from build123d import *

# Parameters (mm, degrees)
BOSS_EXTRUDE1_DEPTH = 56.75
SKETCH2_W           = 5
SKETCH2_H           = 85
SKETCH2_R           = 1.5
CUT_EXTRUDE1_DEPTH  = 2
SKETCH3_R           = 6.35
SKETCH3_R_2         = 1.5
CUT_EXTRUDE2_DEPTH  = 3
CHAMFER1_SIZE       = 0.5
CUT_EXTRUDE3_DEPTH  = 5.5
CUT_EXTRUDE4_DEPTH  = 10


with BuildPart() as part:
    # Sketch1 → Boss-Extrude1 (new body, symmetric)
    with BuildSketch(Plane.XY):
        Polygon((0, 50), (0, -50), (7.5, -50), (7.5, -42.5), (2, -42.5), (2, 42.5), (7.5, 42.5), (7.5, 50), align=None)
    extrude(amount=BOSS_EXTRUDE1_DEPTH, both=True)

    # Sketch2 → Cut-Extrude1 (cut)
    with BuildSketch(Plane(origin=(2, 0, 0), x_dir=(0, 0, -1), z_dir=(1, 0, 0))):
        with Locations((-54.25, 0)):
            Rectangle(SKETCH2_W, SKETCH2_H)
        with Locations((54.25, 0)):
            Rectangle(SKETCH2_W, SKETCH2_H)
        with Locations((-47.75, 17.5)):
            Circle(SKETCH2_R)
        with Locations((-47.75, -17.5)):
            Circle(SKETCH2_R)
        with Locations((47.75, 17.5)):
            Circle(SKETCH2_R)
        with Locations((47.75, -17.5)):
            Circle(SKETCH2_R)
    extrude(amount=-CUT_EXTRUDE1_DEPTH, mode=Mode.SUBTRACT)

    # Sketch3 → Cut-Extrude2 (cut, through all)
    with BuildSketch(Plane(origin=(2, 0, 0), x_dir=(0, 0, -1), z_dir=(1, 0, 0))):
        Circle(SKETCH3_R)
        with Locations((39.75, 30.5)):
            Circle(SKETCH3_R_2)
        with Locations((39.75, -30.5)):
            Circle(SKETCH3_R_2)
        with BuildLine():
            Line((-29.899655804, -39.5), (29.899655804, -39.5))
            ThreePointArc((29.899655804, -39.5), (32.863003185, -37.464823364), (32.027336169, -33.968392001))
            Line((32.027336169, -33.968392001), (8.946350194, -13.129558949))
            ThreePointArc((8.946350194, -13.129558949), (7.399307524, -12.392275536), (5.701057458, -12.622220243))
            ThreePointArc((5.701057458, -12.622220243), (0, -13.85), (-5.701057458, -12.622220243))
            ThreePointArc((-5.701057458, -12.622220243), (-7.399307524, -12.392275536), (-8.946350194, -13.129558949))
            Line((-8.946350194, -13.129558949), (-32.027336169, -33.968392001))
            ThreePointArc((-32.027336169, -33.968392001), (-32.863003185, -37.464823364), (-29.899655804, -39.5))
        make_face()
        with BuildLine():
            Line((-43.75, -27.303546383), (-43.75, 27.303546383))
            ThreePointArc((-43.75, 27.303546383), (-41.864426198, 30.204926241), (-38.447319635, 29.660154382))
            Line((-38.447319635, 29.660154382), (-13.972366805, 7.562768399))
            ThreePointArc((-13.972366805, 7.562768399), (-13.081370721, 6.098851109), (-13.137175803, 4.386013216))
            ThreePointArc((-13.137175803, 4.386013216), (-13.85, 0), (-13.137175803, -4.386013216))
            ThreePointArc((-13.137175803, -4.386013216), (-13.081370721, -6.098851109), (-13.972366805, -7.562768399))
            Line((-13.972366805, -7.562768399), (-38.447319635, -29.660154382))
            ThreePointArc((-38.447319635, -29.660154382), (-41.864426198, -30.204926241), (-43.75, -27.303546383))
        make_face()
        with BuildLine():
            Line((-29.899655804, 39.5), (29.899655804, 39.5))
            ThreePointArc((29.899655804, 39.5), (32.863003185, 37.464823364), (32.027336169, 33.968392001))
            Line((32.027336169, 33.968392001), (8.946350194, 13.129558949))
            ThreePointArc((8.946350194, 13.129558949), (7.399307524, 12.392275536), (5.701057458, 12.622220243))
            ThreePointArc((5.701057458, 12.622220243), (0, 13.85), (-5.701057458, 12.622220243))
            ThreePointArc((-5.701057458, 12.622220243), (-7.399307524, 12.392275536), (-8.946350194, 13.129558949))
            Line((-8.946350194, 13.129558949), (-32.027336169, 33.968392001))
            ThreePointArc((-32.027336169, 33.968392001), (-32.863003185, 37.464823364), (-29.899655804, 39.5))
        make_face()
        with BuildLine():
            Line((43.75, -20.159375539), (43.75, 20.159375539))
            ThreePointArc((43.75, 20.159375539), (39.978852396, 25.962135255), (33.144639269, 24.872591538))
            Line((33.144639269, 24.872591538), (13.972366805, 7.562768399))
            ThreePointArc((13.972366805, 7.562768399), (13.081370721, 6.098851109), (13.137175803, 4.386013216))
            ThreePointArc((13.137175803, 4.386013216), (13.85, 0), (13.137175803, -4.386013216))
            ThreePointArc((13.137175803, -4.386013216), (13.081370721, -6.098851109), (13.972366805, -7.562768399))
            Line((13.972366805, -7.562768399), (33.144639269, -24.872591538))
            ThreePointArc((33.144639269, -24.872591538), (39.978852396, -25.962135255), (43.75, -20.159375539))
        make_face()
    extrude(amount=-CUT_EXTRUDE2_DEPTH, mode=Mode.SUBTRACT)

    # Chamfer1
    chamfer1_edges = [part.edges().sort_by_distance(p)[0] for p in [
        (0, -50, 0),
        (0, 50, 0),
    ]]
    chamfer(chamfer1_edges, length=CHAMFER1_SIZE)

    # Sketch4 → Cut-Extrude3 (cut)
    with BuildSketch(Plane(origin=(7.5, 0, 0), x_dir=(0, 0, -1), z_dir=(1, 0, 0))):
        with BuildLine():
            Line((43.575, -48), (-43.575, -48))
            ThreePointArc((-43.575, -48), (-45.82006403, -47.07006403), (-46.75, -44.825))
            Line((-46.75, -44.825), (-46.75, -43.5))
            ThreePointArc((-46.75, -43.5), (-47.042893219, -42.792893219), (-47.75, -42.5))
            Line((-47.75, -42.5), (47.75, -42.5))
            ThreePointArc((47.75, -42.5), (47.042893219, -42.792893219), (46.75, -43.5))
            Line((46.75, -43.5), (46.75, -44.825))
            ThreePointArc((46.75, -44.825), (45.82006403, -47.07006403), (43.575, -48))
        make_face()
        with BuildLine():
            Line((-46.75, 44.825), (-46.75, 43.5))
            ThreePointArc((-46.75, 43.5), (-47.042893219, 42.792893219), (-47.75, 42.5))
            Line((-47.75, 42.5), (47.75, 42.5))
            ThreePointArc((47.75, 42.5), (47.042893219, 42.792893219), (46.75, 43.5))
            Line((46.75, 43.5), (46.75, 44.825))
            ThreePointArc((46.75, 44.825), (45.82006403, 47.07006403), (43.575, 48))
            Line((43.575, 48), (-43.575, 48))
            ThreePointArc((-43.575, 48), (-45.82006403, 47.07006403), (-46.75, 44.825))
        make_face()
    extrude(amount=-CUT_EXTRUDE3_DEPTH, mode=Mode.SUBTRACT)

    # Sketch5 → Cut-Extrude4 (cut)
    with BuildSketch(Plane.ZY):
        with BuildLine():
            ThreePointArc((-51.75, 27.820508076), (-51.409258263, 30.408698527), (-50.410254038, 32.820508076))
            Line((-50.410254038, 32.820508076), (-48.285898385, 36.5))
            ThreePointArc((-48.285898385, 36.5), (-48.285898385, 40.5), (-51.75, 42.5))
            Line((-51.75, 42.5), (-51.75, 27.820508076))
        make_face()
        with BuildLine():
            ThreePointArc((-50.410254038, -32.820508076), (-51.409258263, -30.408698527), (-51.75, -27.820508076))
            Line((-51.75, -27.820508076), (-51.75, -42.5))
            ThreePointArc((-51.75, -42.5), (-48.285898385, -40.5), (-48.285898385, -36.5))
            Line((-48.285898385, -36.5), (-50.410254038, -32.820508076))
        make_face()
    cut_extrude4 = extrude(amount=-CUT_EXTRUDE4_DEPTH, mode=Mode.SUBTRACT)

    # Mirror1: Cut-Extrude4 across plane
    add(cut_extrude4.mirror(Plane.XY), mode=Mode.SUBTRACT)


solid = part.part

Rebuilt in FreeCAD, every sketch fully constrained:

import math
import FreeCAD as App
import Part
import Sketcher
from FreeCAD import Vector
Q = App.Units.Quantity


def edges_at(feature, points):
    """Names of the edges that pass closest to the given points."""
    edges = feature.Shape.Edges
    near = lambda p: min(range(len(edges)), key=lambda i: edges[i].distToShape(Part.Vertex(*p))[0])
    return sorted({f"Edge{near(p) + 1}" for p in points})

doc = App.newDocument("Part")
body = doc.addObject("PartDesign::Body", "Body")

sketch1 = body.newObject("Sketcher::SketchObject", "Sketch")
sketch1.AttachmentSupport = (doc.getObject("XY_Plane"), [""])
sketch1.MapMode = "FlatFace"
sketch1.addGeometry([
    Part.LineSegment(Vector(0, 50, 0), Vector(0, -50, 0)),
    Part.LineSegment(Vector(0, -50, 0), Vector(7.5, -50, 0)),
    Part.LineSegment(Vector(7.5, -50, 0), Vector(7.5, -42.5, 0)),
    Part.LineSegment(Vector(7.5, -42.5, 0), Vector(2, -42.5, 0)),
    Part.LineSegment(Vector(2, -42.5, 0), Vector(2, 42.5, 0)),
    Part.LineSegment(Vector(2, 42.5, 0), Vector(7.5, 42.5, 0)),
    Part.LineSegment(Vector(7.5, 42.5, 0), Vector(7.5, 50, 0)),
    Part.LineSegment(Vector(7.5, 50, 0), Vector(0, 50, 0)),
], False)
sketch1.addConstraint([
    Sketcher.Constraint("Coincident", 0, 2, 1, 1),
    Sketcher.Constraint("Coincident", 1, 2, 2, 1),
    Sketcher.Constraint("Coincident", 2, 2, 3, 1),
    Sketcher.Constraint("Coincident", 3, 2, 4, 1),
    Sketcher.Constraint("Coincident", 4, 2, 5, 1),
    Sketcher.Constraint("Coincident", 5, 2, 6, 1),
    Sketcher.Constraint("Coincident", 6, 2, 7, 1),
    Sketcher.Constraint("Coincident", 7, 2, 0, 1),
    Sketcher.Constraint("Vertical", 0),
    Sketcher.Constraint("Horizontal", 1),
    Sketcher.Constraint("Vertical", 2),
    Sketcher.Constraint("Horizontal", 3),
    Sketcher.Constraint("Vertical", 4),
    Sketcher.Constraint("Horizontal", 5),
    Sketcher.Constraint("Vertical", 6),
    Sketcher.Constraint("Horizontal", 7),
    Sketcher.Constraint("Symmetric", 0, 2, 7, 2, -1, 1),
    Sketcher.Constraint("Symmetric", 2, 2, 5, 2, -1),
    Sketcher.Constraint("Equal", 7, 2),
    Sketcher.Constraint("DistanceY", 0, 2, 0, 1, 100.0),
    Sketcher.Constraint("DistanceY", 4, 1, 4, 2, 85.0),
    Sketcher.Constraint("DistanceX", 3, 2, 3, 1, 5.5),
])
pad1 = body.newObject("PartDesign::Pad", "Pad")
pad1.Profile = sketch1
pad1.Length = 113.5
pad1.Midplane = True

sketch2 = body.newObject("Sketcher::SketchObject", "Sketch001")
sketch2.AttachmentSupport = (doc.getObject("YZ_Plane"), [""])
sketch2.MapMode = "FlatFace"
sketch2.AttachmentOffset = App.Placement(Vector(0, 0, 2), App.Rotation())
sketch2.addGeometry([
    Part.LineSegment(Vector(42.5, 56.75, 0), Vector(-42.5, 56.75, 0)),
    Part.LineSegment(Vector(-42.5, 56.75, 0), Vector(-42.5, 51.75, 0)),
    Part.LineSegment(Vector(-42.5, 51.75, 0), Vector(42.5, 51.75, 0)),
    Part.LineSegment(Vector(42.5, 51.75, 0), Vector(42.5, 56.75, 0)),
    Part.LineSegment(Vector(42.5, -51.75, 0), Vector(-42.5, -51.75, 0)),
    Part.LineSegment(Vector(-42.5, -51.75, 0), Vector(-42.5, -56.75, 0)),
    Part.LineSegment(Vector(-42.5, -56.75, 0), Vector(42.5, -56.75, 0)),
    Part.LineSegment(Vector(42.5, -56.75, 0), Vector(42.5, -51.75, 0)),
    Part.Circle(Vector(17.5, 47.75, 0), Vector(0, 0, 1), 1.5),
    Part.Circle(Vector(-17.5, 47.75, 0), Vector(0, 0, 1), 1.5),
    Part.Circle(Vector(17.5, -47.75, 0), Vector(0, 0, 1), 1.5),
    Part.Circle(Vector(-17.5, -47.75, 0), Vector(0, 0, 1), 1.5),
], False)
sketch2.addConstraint([
    Sketcher.Constraint("Coincident", 0, 2, 1, 1),
    Sketcher.Constraint("Coincident", 1, 2, 2, 1),
    Sketcher.Constraint("Coincident", 2, 2, 3, 1),
    Sketcher.Constraint("Coincident", 3, 2, 0, 1),
    Sketcher.Constraint("Coincident", 4, 2, 5, 1),
    Sketcher.Constraint("Coincident", 5, 2, 6, 1),
    Sketcher.Constraint("Coincident", 6, 2, 7, 1),
    Sketcher.Constraint("Coincident", 7, 2, 4, 1),
    Sketcher.Constraint("Horizontal", 0),
    Sketcher.Constraint("Vertical", 1),
    Sketcher.Constraint("Horizontal", 2),
    Sketcher.Constraint("Vertical", 3),
    Sketcher.Constraint("Horizontal", 4),
    Sketcher.Constraint("Vertical", 5),
    Sketcher.Constraint("Horizontal", 6),
    Sketcher.Constraint("Vertical", 7),
    Sketcher.Constraint("Equal", 8, 9),
    Sketcher.Constraint("Equal", 9, 10),
    Sketcher.Constraint("Equal", 10, 11),
    Sketcher.Constraint("Symmetric", 9, 3, 10, 3, -1, 1),
    Sketcher.Constraint("Symmetric", 8, 3, 11, 3, -1, 1),
    Sketcher.Constraint("Symmetric", 2, 2, 4, 2, -1, 1),
    Sketcher.Constraint("Symmetric", 0, 2, 6, 2, -1, 1),
    Sketcher.Constraint("Symmetric", 8, 3, 9, 3, -2),
    Sketcher.Constraint("Vertical", 1, 2, 4, 2),
    Sketcher.Constraint("Diameter", 8, 3.0),
    Sketcher.Constraint("DistanceX", 0, 2, 0, 1, 85.0),
    Sketcher.Constraint("DistanceY", 1, 2, 1, 1, 5.0),
    Sketcher.Constraint("DistanceX", 9, 3, 8, 3, 35.0),
    Sketcher.Constraint("DistanceY", 9, 3, 0, 2, 9.0),
    Sketcher.Constraint("DistanceY", 10, 3, 8, 3, 95.5),
])
pocket1 = body.newObject("PartDesign::Pocket", "Pocket")
pocket1.Profile = sketch2
pocket1.Length = 2

sketch3 = body.newObject("Sketcher::SketchObject", "Sketch002")
sketch3.AttachmentSupport = (doc.getObject("YZ_Plane"), [""])
sketch3.MapMode = "FlatFace"
sketch3.AttachmentOffset = App.Placement(Vector(0, 0, 2), App.Rotation())
sketch3.addGeometry([
    Part.Circle(Vector(0, 0, 0), Vector(0, 0, 1), 6.35),
    Part.Circle(Vector(30.5, -39.75, 0), Vector(0, 0, 1), 1.5),
    Part.Circle(Vector(-30.5, -39.75, 0), Vector(0, 0, 1), 1.5),
    Part.LineSegment(Vector(-39.5, 29.899656, 0), Vector(-39.5, -29.899656, 0)),
    Part.ArcOfCircle(Part.Circle(Vector(-36.325, -29.899656, 0), Vector(0, 0, 1), 3.175), math.radians(180), math.radians(317.922473)),
    Part.LineSegment(Vector(-33.968392, -32.027336, 0), Vector(-13.129559, -8.94635, 0)),
    Part.ArcOfCircle(Part.Circle(Vector(-15.356275, -6.935944, 0), Vector(0, 0, 1), 3), math.radians(-42.077527), math.radians(24.307188)),
    Part.ArcOfCircle(Part.Circle(Vector(0, 0, 0), Vector(0, 0, 1), 13.85), math.radians(155.692812), math.radians(204.307188)),
    Part.ArcOfCircle(Part.Circle(Vector(-15.356275, 6.935944, 0), Vector(0, 0, 1), 3), math.radians(-24.307188), math.radians(42.077527)),
    Part.LineSegment(Vector(-13.129559, 8.94635, 0), Vector(-33.968392, 32.027336, 0)),
    Part.ArcOfCircle(Part.Circle(Vector(-36.325, 29.899656, 0), Vector(0, 0, 1), 3.175), math.radians(42.077527), math.radians(180)),
    Part.LineSegment(Vector(27.303546, 43.75, 0), Vector(-27.303546, 43.75, 0)),
    Part.ArcOfCircle(Part.Circle(Vector(-27.303546, 40.575, 0), Vector(0, 0, 1), 3.175), math.radians(90), math.radians(222.077527)),
    Part.LineSegment(Vector(-29.660154, 38.44732, 0), Vector(-7.562768, 13.972367, 0)),
    Part.ArcOfCircle(Part.Circle(Vector(-5.336052, 15.982773, 0), Vector(0, 0, 1), 3), math.radians(-137.922473), math.radians(-71.537757)),
    Part.ArcOfCircle(Part.Circle(Vector(0, 0, 0), Vector(0, 0, 1), 13.85), math.radians(71.537757), math.radians(108.462243)),
    Part.ArcOfCircle(Part.Circle(Vector(5.336052, 15.982773, 0), Vector(0, 0, 1), 3), math.radians(-108.462243), math.radians(-42.077527)),
    Part.LineSegment(Vector(7.562768, 13.972367, 0), Vector(29.660154, 38.44732, 0)),
    Part.ArcOfCircle(Part.Circle(Vector(27.303546, 40.575, 0), Vector(0, 0, 1), 3.175), math.radians(-42.077527), math.radians(90)),
    Part.LineSegment(Vector(39.5, -29.899656, 0), Vector(39.5, 29.899656, 0)),
    Part.ArcOfCircle(Part.Circle(Vector(36.325, 29.899656, 0), Vector(0, 0, 1), 3.175), math.radians(0), math.radians(137.922473)),
    Part.LineSegment(Vector(33.968392, 32.027336, 0), Vector(13.129559, 8.94635, 0)),
    Part.ArcOfCircle(Part.Circle(Vector(15.356275, 6.935944, 0), Vector(0, 0, 1), 3), math.radians(137.922473), math.radians(204.307188)),
    Part.ArcOfCircle(Part.Circle(Vector(0, 0, 0), Vector(0, 0, 1), 13.85), math.radians(-24.307188), math.radians(24.307188)),
    Part.ArcOfCircle(Part.Circle(Vector(15.356275, -6.935944, 0), Vector(0, 0, 1), 3), math.radians(155.692812), math.radians(222.077527)),
    Part.LineSegment(Vector(13.129559, -8.94635, 0), Vector(33.968392, -32.027336, 0)),
    Part.ArcOfCircle(Part.Circle(Vector(36.325, -29.899656, 0), Vector(0, 0, 1), 3.175), math.radians(-137.922473), math.radians(0)),
    Part.LineSegment(Vector(-20.159376, -43.75, 0), Vector(20.159376, -43.75, 0)),
    Part.ArcOfCircle(Part.Circle(Vector(20.159376, -37.4, 0), Vector(0, 0, 1), 6.35), math.radians(-90), math.radians(42.077527)),
    Part.LineSegment(Vector(24.872592, -33.144639, 0), Vector(7.562768, -13.972367, 0)),
    Part.ArcOfCircle(Part.Circle(Vector(5.336052, -15.982773, 0), Vector(0, 0, 1), 3), math.radians(42.077527), math.radians(108.462243)),
    Part.ArcOfCircle(Part.Circle(Vector(0, 0, 0), Vector(0, 0, 1), 13.85), math.radians(-108.462243), math.radians(-71.537757)),
    Part.ArcOfCircle(Part.Circle(Vector(-5.336052, -15.982773, 0), Vector(0, 0, 1), 3), math.radians(71.537757), math.radians(137.922473)),
    Part.LineSegment(Vector(-7.562768, -13.972367, 0), Vector(-24.872592, -33.144639, 0)),
    Part.ArcOfCircle(Part.Circle(Vector(-20.159376, -37.4, 0), Vector(0, 0, 1), 6.35), math.radians(137.922473), math.radians(270)),
], False)
sketch3.addConstraint([
    Sketcher.Constraint("Tangent", 3, 2, 4, 1),
    Sketcher.Constraint("Tangent", 4, 2, 5, 1),
    Sketcher.Constraint("Tangent", 5, 2, 6, 1),
    Sketcher.Constraint("Tangent", 6, 2, 7, 2),
    Sketcher.Constraint("Tangent", 7, 1, 8, 1),
    Sketcher.Constraint("Tangent", 8, 2, 9, 1),
    Sketcher.Constraint("Tangent", 9, 2, 10, 1),
    Sketcher.Constraint("Tangent", 10, 2, 3, 1),
    Sketcher.Constraint("Tangent", 11, 2, 12, 1),
    Sketcher.Constraint("Tangent", 12, 2, 13, 1),
    Sketcher.Constraint("Tangent", 13, 2, 14, 1),
    Sketcher.Constraint("Tangent", 14, 2, 15, 2),
    Sketcher.Constraint("Tangent", 15, 1, 16, 1),
    Sketcher.Constraint("Tangent", 16, 2, 17, 1),
    Sketcher.Constraint("Tangent", 17, 2, 18, 1),
    Sketcher.Constraint("Tangent", 18, 2, 11, 1),
    Sketcher.Constraint("Tangent", 19, 2, 20, 1),
    Sketcher.Constraint("Tangent", 20, 2, 21, 1),
    Sketcher.Constraint("Tangent", 21, 2, 22, 1),
    Sketcher.Constraint("Tangent", 22, 2, 23, 2),
    Sketcher.Constraint("Tangent", 23, 1, 24, 1),
    Sketcher.Constraint("Tangent", 24, 2, 25, 1),
    Sketcher.Constraint("Tangent", 25, 2, 26, 1),
    Sketcher.Constraint("Tangent", 26, 2, 19, 1),
    Sketcher.Constraint("Tangent", 27, 2, 28, 1),
    Sketcher.Constraint("Tangent", 28, 2, 29, 1),
    Sketcher.Constraint("Tangent", 29, 2, 30, 1),
    Sketcher.Constraint("Tangent", 30, 2, 31, 2),
    Sketcher.Constraint("Tangent", 31, 1, 32, 1),
    Sketcher.Constraint("Tangent", 32, 2, 33, 1),
    Sketcher.Constraint("Tangent", 33, 2, 34, 1),
    Sketcher.Constraint("Tangent", 34, 2, 27, 1),
    Sketcher.Constraint("Vertical", 3),
    Sketcher.Constraint("Horizontal", 11),
    Sketcher.Constraint("Vertical", 19),
    Sketcher.Constraint("Horizontal", 27),
    Sketcher.Constraint("Coincident", 0, 3, -1, 1),
    Sketcher.Constraint("Coincident", 7, 3, -1, 1),
    Sketcher.Constraint("Coincident", 15, 3, -1, 1),
    Sketcher.Constraint("Coincident", 23, 3, -1, 1),
    Sketcher.Constraint("Coincident", 31, 3, -1, 1),
    Sketcher.Constraint("Equal", 1, 2),
    Sketcher.Constraint("Equal", 6, 8),
    Sketcher.Constraint("Equal", 4, 10),
    Sketcher.Constraint("Equal", 10, 12),
    Sketcher.Constraint("Equal", 8, 14),
    Sketcher.Constraint("Equal", 7, 15),
    Sketcher.Constraint("Equal", 14, 16),
    Sketcher.Constraint("Equal", 12, 18),
    Sketcher.Constraint("Equal", 18, 20),
    Sketcher.Constraint("Equal", 16, 22),
    Sketcher.Constraint("Equal", 15, 23),
    Sketcher.Constraint("Equal", 22, 24),
    Sketcher.Constraint("Equal", 20, 26),
    Sketcher.Constraint("Equal", 0, 28),
    Sketcher.Constraint("Equal", 24, 30),
    Sketcher.Constraint("Equal", 23, 31),
    Sketcher.Constraint("Equal", 30, 32),
    Sketcher.Constraint("Equal", 28, 34),
    Sketcher.Constraint("Symmetric", 4, 3, 20, 3, -1, 1),
    Sketcher.Constraint("Symmetric", 8, 2, 24, 2, -1, 1),
    Sketcher.Constraint("Symmetric", 13, 2, 29, 2, -1, 1),
    Sketcher.Constraint("Symmetric", 16, 2, 32, 2, -1, 1),
    Sketcher.Constraint("Symmetric", 1, 3, 2, 3, -2),
    Sketcher.Constraint("Symmetric", 13, 2, 16, 2, -2),
    Sketcher.Constraint("Symmetric", 9, 2, 20, 2, -2),
    Sketcher.Constraint("Parallel", 9, 13),
    Sketcher.Constraint("Parallel", 5, 17),
    Sketcher.Constraint("Diameter", 1, 3.0),
    Sketcher.Constraint("Radius", 6, 3.0),
    Sketcher.Constraint("Diameter", 0, 12.7),
    Sketcher.Constraint("Radius", 7, 13.85),
    Sketcher.Constraint("Radius", 4, 3.175),
    Sketcher.Constraint("DistanceX", 2, 3, 1, 3, 61.0),
    Sketcher.Constraint("DistanceX", 3, 2, 2, 3, 9.0),
    Sketcher.Constraint("DistanceY", 27, 2, 1, 3, 4.0),
    Sketcher.Constraint("DistanceY", 28, 3, -1, 1, 37.4),
    Sketcher.Constraint("DistanceY", -1, 1, 11, 2, 43.75),
    Sketcher.Constraint("DistanceY", 6, 2, 8, 3, 12.637001),
    Sketcher.Constraint("DistanceX", 27, 1, 27, 2, 40.318751),
    Sketcher.Constraint("DistanceY", 3, 2, 3, 1, 59.799312),
])
pocket2 = body.newObject("PartDesign::Pocket", "Pocket001")
pocket2.Profile = sketch3
pocket2.Type = "ThroughAll"
doc.recompute()

chamfer = body.newObject("PartDesign::Chamfer", "Chamfer")
chamfer.Base = (pocket2, edges_at(pocket2, [(0, -50, 0), (0, 50, 0)]))
chamfer.Size = 0.5

sketch4 = body.newObject("Sketcher::SketchObject", "Sketch003")
sketch4.AttachmentSupport = (doc.getObject("YZ_Plane"), [""])
sketch4.MapMode = "FlatFace"
sketch4.AttachmentOffset = App.Placement(Vector(0, 0, 7.5), App.Rotation())
sketch4.addGeometry([
    Part.LineSegment(Vector(-48, 43.575, 0), Vector(-48, -43.575, 0)),
    Part.ArcOfCircle(Part.Circle(Vector(-44.825, -43.575, 0), Vector(0, 0, 1), 3.175), math.radians(-180), math.radians(-90)),
    Part.LineSegment(Vector(-44.825, -46.75, 0), Vector(-43.5, -46.75, 0)),
    Part.ArcOfCircle(Part.Circle(Vector(-43.5, -47.75, 0), Vector(0, 0, 1), 1), math.radians(0), math.radians(90)),
    Part.LineSegment(Vector(-42.5, -47.75, 0), Vector(-42.5, 47.75, 0)),
    Part.ArcOfCircle(Part.Circle(Vector(-43.5, 47.75, 0), Vector(0, 0, 1), 1), math.radians(-90), math.radians(0)),
    Part.LineSegment(Vector(-43.5, 46.75, 0), Vector(-44.825, 46.75, 0)),
    Part.ArcOfCircle(Part.Circle(Vector(-44.825, 43.575, 0), Vector(0, 0, 1), 3.175), math.radians(90), math.radians(180)),
    Part.LineSegment(Vector(44.825, 46.75, 0), Vector(43.5, 46.75, 0)),
    Part.ArcOfCircle(Part.Circle(Vector(43.5, 47.75, 0), Vector(0, 0, 1), 1), math.radians(-180), math.radians(-90)),
    Part.LineSegment(Vector(42.5, 47.75, 0), Vector(42.5, -47.75, 0)),
    Part.ArcOfCircle(Part.Circle(Vector(43.5, -47.75, 0), Vector(0, 0, 1), 1), math.radians(90), math.radians(180)),
    Part.LineSegment(Vector(43.5, -46.75, 0), Vector(44.825, -46.75, 0)),
    Part.ArcOfCircle(Part.Circle(Vector(44.825, -43.575, 0), Vector(0, 0, 1), 3.175), math.radians(-90), math.radians(0)),
    Part.LineSegment(Vector(48, -43.575, 0), Vector(48, 43.575, 0)),
    Part.ArcOfCircle(Part.Circle(Vector(44.825, 43.575, 0), Vector(0, 0, 1), 3.175), math.radians(0), math.radians(90)),
], False)
sketch4.addConstraint([
    Sketcher.Constraint("Tangent", 0, 2, 1, 1),
    Sketcher.Constraint("Tangent", 1, 2, 2, 1),
    Sketcher.Constraint("Tangent", 2, 2, 3, 2),
    Sketcher.Constraint("Tangent", 3, 1, 4, 1),
    Sketcher.Constraint("Tangent", 4, 2, 5, 2),
    Sketcher.Constraint("Tangent", 5, 1, 6, 1),
    Sketcher.Constraint("Tangent", 6, 2, 7, 1),
    Sketcher.Constraint("Tangent", 7, 2, 0, 1),
    Sketcher.Constraint("Tangent", 8, 2, 9, 2),
    Sketcher.Constraint("Tangent", 9, 1, 10, 1),
    Sketcher.Constraint("Tangent", 10, 2, 11, 2),
    Sketcher.Constraint("Tangent", 11, 1, 12, 1),
    Sketcher.Constraint("Tangent", 12, 2, 13, 1),
    Sketcher.Constraint("Tangent", 13, 2, 14, 1),
    Sketcher.Constraint("Tangent", 14, 2, 15, 1),
    Sketcher.Constraint("Tangent", 15, 2, 8, 1),
    Sketcher.Constraint("Vertical", 0),
    Sketcher.Constraint("Horizontal", 2),
    Sketcher.Constraint("Vertical", 4),
    Sketcher.Constraint("Horizontal", 6),
    Sketcher.Constraint("Horizontal", 8),
    Sketcher.Constraint("Vertical", 10),
    Sketcher.Constraint("Horizontal", 12),
    Sketcher.Constraint("Vertical", 14),
    Sketcher.Constraint("Equal", 3, 5),
    Sketcher.Constraint("Equal", 1, 7),
    Sketcher.Constraint("Equal", 5, 9),
    Sketcher.Constraint("Equal", 9, 11),
    Sketcher.Constraint("Equal", 7, 13),
    Sketcher.Constraint("Equal", 13, 15),
    Sketcher.Constraint("Symmetric", 3, 3, 9, 3, -1, 1),
    Sketcher.Constraint("Symmetric", 7, 3, 13, 3, -1, 1),
    Sketcher.Constraint("Horizontal", 5, 3, 9, 3),
    Sketcher.Constraint("Radius", 3, 1.0),
    Sketcher.Constraint("DistanceY", 4, 1, 4, 2, 95.5),
    Sketcher.Constraint("DistanceX", 0, 2, -1, 1, 48.0),
    Sketcher.Constraint("Radius", 1, 3.175),
    Sketcher.Constraint("DistanceX", 5, 3, 9, 3, 87.0),
])
pocket3 = body.newObject("PartDesign::Pocket", "Pocket002")
pocket3.Profile = sketch4
pocket3.Length = 5.5

sketch5 = body.newObject("Sketcher::SketchObject", "Sketch004")
sketch5.AttachmentSupport = (doc.getObject("YZ_Plane"), [""])
sketch5.MapMode = "FlatFace"
sketch5.addGeometry([
    Part.ArcOfCircle(Part.Circle(Vector(27.820508, -41.75, 0), Vector(0, 0, 1), 10), math.radians(-90), math.radians(-60)),
    Part.LineSegment(Vector(32.820508, -50.410254, 0), Vector(36.5, -48.285898, 0)),
    Part.ArcOfCircle(Part.Circle(Vector(38.5, -51.75, 0), Vector(0, 0, 1), 4), math.radians(0), math.radians(120)),
    Part.LineSegment(Vector(42.5, -51.75, 0), Vector(27.820508, -51.75, 0)),
    Part.ArcOfCircle(Part.Circle(Vector(-27.820508, -41.75, 0), Vector(0, 0, 1), 10), math.radians(-120), math.radians(-90)),
    Part.LineSegment(Vector(-27.820508, -51.75, 0), Vector(-42.5, -51.75, 0)),
    Part.ArcOfCircle(Part.Circle(Vector(-38.5, -51.75, 0), Vector(0, 0, 1), 4), math.radians(60), math.radians(180)),
    Part.LineSegment(Vector(-36.5, -48.285898, 0), Vector(-32.820508, -50.410254, 0)),
], False)
sketch5.addConstraint([
    Sketcher.Constraint("Tangent", 0, 2, 1, 1),
    Sketcher.Constraint("Tangent", 1, 2, 2, 2),
    Sketcher.Constraint("Coincident", 2, 1, 3, 1),
    Sketcher.Constraint("Tangent", 3, 2, 0, 1),
    Sketcher.Constraint("Tangent", 4, 2, 5, 1),
    Sketcher.Constraint("Coincident", 5, 2, 6, 2),
    Sketcher.Constraint("Tangent", 6, 1, 7, 1),
    Sketcher.Constraint("Tangent", 7, 2, 4, 1),
    Sketcher.Constraint("Horizontal", 3),
    Sketcher.Constraint("Horizontal", 5),
    Sketcher.Constraint("Equal", 0, 4),
    Sketcher.Constraint("Equal", 2, 6),
    Sketcher.Constraint("Symmetric", 0, 3, 4, 3, -2),
    Sketcher.Constraint("Symmetric", 2, 3, 6, 3, -2),
    Sketcher.Constraint("Horizontal", 6, 3, 2, 1),
    Sketcher.Constraint("Radius", 0, 10.0),
    Sketcher.Constraint("Radius", 2, 4.0),
    Sketcher.Constraint("Angle", 1, Q("30 deg")),
    Sketcher.Constraint("DistanceX", 6, 3, 2, 3, 77.0),
    Sketcher.Constraint("DistanceY", 0, 3, -1, 1, 41.75),
])
pocket4 = body.newObject("PartDesign::Pocket", "Pocket003")
pocket4.Profile = sketch5
pocket4.Length = 10
pocket4.Reversed = True
doc.recompute()

mirrored = body.newObject("PartDesign::Mirrored", "Mirrored")
mirrored.Originals = [pocket4]
mirrored.MirrorPlane = (doc.getObject("XY_Plane"), [""])
body.Tip = mirrored

doc.recompute()
